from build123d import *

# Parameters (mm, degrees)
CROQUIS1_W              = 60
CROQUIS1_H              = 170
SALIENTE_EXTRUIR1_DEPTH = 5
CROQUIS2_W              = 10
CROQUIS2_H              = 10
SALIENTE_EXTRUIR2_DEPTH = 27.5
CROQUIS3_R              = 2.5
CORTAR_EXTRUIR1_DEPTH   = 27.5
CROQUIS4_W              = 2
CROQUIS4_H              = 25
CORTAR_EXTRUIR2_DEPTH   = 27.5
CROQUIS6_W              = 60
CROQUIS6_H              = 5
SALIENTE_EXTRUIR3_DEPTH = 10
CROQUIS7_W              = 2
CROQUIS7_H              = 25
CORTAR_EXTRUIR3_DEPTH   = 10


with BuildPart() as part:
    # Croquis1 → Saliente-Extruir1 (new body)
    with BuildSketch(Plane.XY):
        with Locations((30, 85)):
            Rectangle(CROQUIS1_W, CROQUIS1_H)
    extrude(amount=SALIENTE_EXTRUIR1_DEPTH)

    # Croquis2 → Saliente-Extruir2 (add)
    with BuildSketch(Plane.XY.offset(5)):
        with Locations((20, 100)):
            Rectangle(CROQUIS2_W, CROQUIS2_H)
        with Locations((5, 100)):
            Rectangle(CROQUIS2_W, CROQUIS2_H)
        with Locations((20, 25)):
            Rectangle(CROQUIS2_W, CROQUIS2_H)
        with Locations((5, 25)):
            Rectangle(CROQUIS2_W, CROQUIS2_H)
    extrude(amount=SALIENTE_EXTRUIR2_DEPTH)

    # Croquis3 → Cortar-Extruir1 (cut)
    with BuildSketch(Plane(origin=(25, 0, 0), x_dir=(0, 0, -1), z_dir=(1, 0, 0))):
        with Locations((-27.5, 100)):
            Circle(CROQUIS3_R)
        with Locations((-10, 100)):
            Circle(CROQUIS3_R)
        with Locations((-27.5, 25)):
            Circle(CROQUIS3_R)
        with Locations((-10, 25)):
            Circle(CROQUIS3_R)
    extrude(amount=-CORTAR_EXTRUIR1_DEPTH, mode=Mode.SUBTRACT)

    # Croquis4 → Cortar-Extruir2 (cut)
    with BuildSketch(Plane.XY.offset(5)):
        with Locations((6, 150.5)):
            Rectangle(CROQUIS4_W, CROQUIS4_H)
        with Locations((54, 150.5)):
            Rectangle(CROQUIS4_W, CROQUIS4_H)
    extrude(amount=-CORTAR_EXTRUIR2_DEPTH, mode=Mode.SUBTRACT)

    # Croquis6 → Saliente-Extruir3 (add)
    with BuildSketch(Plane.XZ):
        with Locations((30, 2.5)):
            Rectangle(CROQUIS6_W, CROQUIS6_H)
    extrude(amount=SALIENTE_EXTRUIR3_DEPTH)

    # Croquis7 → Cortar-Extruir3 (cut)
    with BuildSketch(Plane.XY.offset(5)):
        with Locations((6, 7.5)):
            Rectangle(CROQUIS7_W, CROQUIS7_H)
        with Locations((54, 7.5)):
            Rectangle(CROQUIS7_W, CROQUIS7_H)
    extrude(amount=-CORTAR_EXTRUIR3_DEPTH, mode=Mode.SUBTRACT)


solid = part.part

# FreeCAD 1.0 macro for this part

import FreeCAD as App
import Part
import Sketcher

V = App.Vector
Q = App.Units.Quantity


def add_polygon(sketch, points):
    """Adds a closed chain of lines whose ends are joined by coincident constraints."""
    first, n = sketch.GeometryCount, len(points)
    for a, b in zip(points, points[1:] + points[:1]):
        sketch.addGeometry(Part.LineSegment(App.Vector(*a, 0), App.Vector(*b, 0)), False)
    for i in range(n):
        sketch.addConstraint(Sketcher.Constraint("Coincident", first + i, 2, first + (i + 1) % n, 1))

doc = App.newDocument("Part")
body = doc.addObject("PartDesign::Body", "Body")

sketch1 = doc.addObject("Sketcher::SketchObject", "Sketch")
body.addObject(sketch1)
sketch1.AttachmentSupport = (doc.XY_Plane, [""])
sketch1.MapMode = "FlatFace"
add_polygon(sketch1, [(0, 170), (0, 0), (60, 0), (60, 170)])
sketch1.addConstraint(Sketcher.Constraint("Vertical", 0))
sketch1.addConstraint(Sketcher.Constraint("Horizontal", 1))
sketch1.addConstraint(Sketcher.Constraint("Vertical", 2))
sketch1.addConstraint(Sketcher.Constraint("Horizontal", 3))
sketch1.addConstraint(Sketcher.Constraint("Coincident", 0, 2, -1, 1))
sketch1.addConstraint(Sketcher.Constraint("DistanceX", 1, 1, 1, 2, Q("60 mm")))
sketch1.addConstraint(Sketcher.Constraint("DistanceY", 0, 2, 0, 1, Q("170 mm")))
pad1 = doc.addObject("PartDesign::Pad", "Pad")
body.addObject(pad1)
pad1.Profile = sketch1
pad1.Length = 5

sketch2 = doc.addObject("Sketcher::SketchObject", "Sketch001")
body.addObject(sketch2)
sketch2.AttachmentSupport = (doc.XY_Plane, [""])
sketch2.MapMode = "FlatFace"
sketch2.AttachmentOffset = App.Placement(V(0, 0, 5), App.Rotation())
add_polygon(sketch2, [(15, 105), (15, 95), (25, 95), (25, 105)])
add_polygon(sketch2, [(0, 105), (0, 95), (10, 95), (10, 105)])
add_polygon(sketch2, [(15, 30), (15, 20), (25, 20), (25, 30)])
add_polygon(sketch2, [(0, 30), (0, 20), (10, 20), (10, 30)])
sketch2.addConstraint(Sketcher.Constraint("Vertical", 0))
sketch2.addConstraint(Sketcher.Constraint("Horizontal", 1))
sketch2.addConstraint(Sketcher.Constraint("Vertical", 2))
sketch2.addConstraint(Sketcher.Constraint("Horizontal", 3))
sketch2.addConstraint(Sketcher.Constraint("Vertical", 4))
sketch2.addConstraint(Sketcher.Constraint("Horizontal", 5))
sketch2.addConstraint(Sketcher.Constraint("Vertical", 6))
sketch2.addConstraint(Sketcher.Constraint("Horizontal", 7))
sketch2.addConstraint(Sketcher.Constraint("Vertical", 8))
sketch2.addConstraint(Sketcher.Constraint("Horizontal", 9))
sketch2.addConstraint(Sketcher.Constraint("Vertical", 10))
sketch2.addConstraint(Sketcher.Constraint("Horizontal", 11))
sketch2.addConstraint(Sketcher.Constraint("Vertical", 12))
sketch2.addConstraint(Sketcher.Constraint("Horizontal", 13))
sketch2.addConstraint(Sketcher.Constraint("Vertical", 14))
sketch2.addConstraint(Sketcher.Constraint("Horizontal", 15))
sketch2.addConstraint(Sketcher.Constraint("PointOnObject", 4, 2, -2))
sketch2.addConstraint(Sketcher.Constraint("PointOnObject", 12, 2, -2))
sketch2.addConstraint(Sketcher.Constraint("Horizontal", 1, 2, 4, 2))
sketch2.addConstraint(Sketcher.Constraint("Horizontal", 3, 2, 6, 2))
sketch2.addConstraint(Sketcher.Constraint("Horizontal", 9, 2, 12, 2))
sketch2.addConstraint(Sketcher.Constraint("Horizontal", 11, 2, 14, 2))
sketch2.addConstraint(Sketcher.Constraint("Vertical", 3, 2, 8, 2))
sketch2.addConstraint(Sketcher.Constraint("Vertical", 2, 2, 9, 2))
sketch2.addConstraint(Sketcher.Constraint("Vertical", 6, 2, 13, 2))
sketch2.addConstraint(Sketcher.Constraint("Equal", 3, 5))
sketch2.addConstraint(Sketcher.Constraint("Equal", 15, 0))
sketch2.addConstraint(Sketcher.Constraint("Equal", 6, 8))
sketch2.addConstraint(Sketcher.Constraint("DistanceX", 1, 1, 1, 2, Q("10 mm")))
sketch2.addConstraint(Sketcher.Constraint("DistanceX", -1, 1, 0, 2, Q("15 mm")))
sketch2.addConstraint(Sketcher.Constraint("DistanceY", -1, 1, 0, 2, Q("95 mm")))
sketch2.addConstraint(Sketcher.Constraint("DistanceY", -1, 1, 8, 2, Q("20 mm")))
pad2 = doc.addObject("PartDesign::Pad", "Pad001")
body.addObject(pad2)
pad2.Profile = sketch2
pad2.Length = 27.5

sketch3 = doc.addObject("Sketcher::SketchObject", "Sketch002")
body.addObject(sketch3)
sketch3.AttachmentSupport = (doc.YZ_Plane, [""])
sketch3.MapMode = "FlatFace"
sketch3.AttachmentOffset = App.Placement(V(0, 0, 25), App.Rotation())
sketch3.addGeometry(Part.Circle(V(100, 27.5, 0), V(0, 0, 1), 2.5), False)
sketch3.addGeometry(Part.Circle(V(100, 10, 0), V(0, 0, 1), 2.5), False)
sketch3.addGeometry(Part.Circle(V(25, 27.5, 0), V(0, 0, 1), 2.5), False)
sketch3.addGeometry(Part.Circle(V(25, 10, 0), V(0, 0, 1), 2.5), False)
sketch3.addConstraint(Sketcher.Constraint("Equal", 0, 1))
sketch3.addConstraint(Sketcher.Constraint("Equal", 1, 2))
sketch3.addConstraint(Sketcher.Constraint("Equal", 2, 3))
sketch3.addConstraint(Sketcher.Constraint("Horizontal", 0, 3, 2, 3))
sketch3.addConstraint(Sketcher.Constraint("Horizontal", 1, 3, 3, 3))
sketch3.addConstraint(Sketcher.Constraint("Vertical", 0, 3, 1, 3))
sketch3.addConstraint(Sketcher.Constraint("Vertical", 2, 3, 3, 3))
sketch3.addConstraint(Sketcher.Constraint("Diameter", 0, Q("5 mm")))
sketch3.addConstraint(Sketcher.Constraint("DistanceX", -1, 1, 0, 3, Q("100 mm")))
sketch3.addConstraint(Sketcher.Constraint("DistanceY", -1, 1, 1, 3, Q("10 mm")))
sketch3.addConstraint(Sketcher.Constraint("DistanceX", -1, 1, 2, 3, Q("25 mm")))
sketch3.addConstraint(Sketcher.Constraint("DistanceY", -1, 1, 0, 3, Q("27.5 mm")))
pocket1 = doc.addObject("PartDesign::Pocket", "Pocket")
body.addObject(pocket1)
pocket1.Profile = sketch3
pocket1.Length = 27.5

sketch4 = doc.addObject("Sketcher::SketchObject", "Sketch003")
body.addObject(sketch4)
sketch4.AttachmentSupport = (doc.XY_Plane, [""])
sketch4.MapMode = "FlatFace"
sketch4.AttachmentOffset = App.Placement(V(0, 0, 5), App.Rotation())
add_polygon(sketch4, [(5, 163), (5, 138), (7, 138), (7, 163)])
add_polygon(sketch4, [(53, 163), (53, 138), (55, 138), (55, 163)])
sketch4.addConstraint(Sketcher.Constraint("Vertical", 0))
sketch4.addConstraint(Sketcher.Constraint("Horizontal", 1))
sketch4.addConstraint(Sketcher.Constraint("Vertical", 2))
sketch4.addConstraint(Sketcher.Constraint("Horizontal", 3))
sketch4.addConstraint(Sketcher.Constraint("Vertical", 4))
sketch4.addConstraint(Sketcher.Constraint("Horizontal", 5))
sketch4.addConstraint(Sketcher.Constraint("Vertical", 6))
sketch4.addConstraint(Sketcher.Constraint("Horizontal", 7))
sketch4.addConstraint(Sketcher.Constraint("Horizontal", 1, 2, 4, 2))
sketch4.addConstraint(Sketcher.Constraint("Horizontal", 3, 2, 6, 2))
sketch4.addConstraint(Sketcher.Constraint("Equal", 3, 5))
sketch4.addConstraint(Sketcher.Constraint("DistanceX", 1, 1, 1, 2, Q("2 mm")))
sketch4.addConstraint(Sketcher.Constraint("DistanceY", 0, 2, 0, 1, Q("25 mm")))
sketch4.addConstraint(Sketcher.Constraint("DistanceX", -1, 1, 0, 2, Q("5 mm")))
sketch4.addConstraint(Sketcher.Constraint("DistanceY", -1, 1, 0, 2, Q("138 mm")))
sketch4.addConstraint(Sketcher.Constraint("DistanceX", -1, 1, 4, 2, Q("53 mm")))
pocket2 = doc.addObject("PartDesign::Pocket", "Pocket001")
body.addObject(pocket2)
pocket2.Profile = sketch4
pocket2.Length = 27.5

sketch5 = doc.addObject("Sketcher::SketchObject", "Sketch004")
body.addObject(sketch5)
sketch5.AttachmentSupport = (doc.XZ_Plane, [""])
sketch5.MapMode = "FlatFace"
add_polygon(sketch5, [(0, 5), (0, 0), (60, 0), (60, 5)])
sketch5.addConstraint(Sketcher.Constraint("Vertical", 0))
sketch5.addConstraint(Sketcher.Constraint("Horizontal", 1))
sketch5.addConstraint(Sketcher.Constraint("Vertical", 2))
sketch5.addConstraint(Sketcher.Constraint("Horizontal", 3))
sketch5.addConstraint(Sketcher.Constraint("Coincident", 0, 2, -1, 1))
sketch5.addConstraint(Sketcher.Constraint("DistanceX", 1, 1, 1, 2, Q("60 mm")))
sketch5.addConstraint(Sketcher.Constraint("DistanceY", 0, 2, 0, 1, Q("5 mm")))
pad3 = doc.addObject("PartDesign::Pad", "Pad002")
body.addObject(pad3)
pad3.Profile = sketch5
pad3.Length = 10

sketch6 = doc.addObject("Sketcher::SketchObject", "Sketch005")
body.addObject(sketch6)
sketch6.AttachmentSupport = (doc.XY_Plane, [""])
sketch6.MapMode = "FlatFace"
sketch6.AttachmentOffset = App.Placement(V(0, 0, 5), App.Rotation())
add_polygon(sketch6, [(5, 20), (5, -5), (7, -5), (7, 20)])
add_polygon(sketch6, [(53, 20), (53, -5), (55, -5), (55, 20)])
sketch6.addConstraint(Sketcher.Constraint("Vertical", 0))
sketch6.addConstraint(Sketcher.Constraint("Horizontal", 1))
sketch6.addConstraint(Sketcher.Constraint("Vertical", 2))
sketch6.addConstraint(Sketcher.Constraint("Horizontal", 3))
sketch6.addConstraint(Sketcher.Constraint("Vertical", 4))
sketch6.addConstraint(Sketcher.Constraint("Horizontal", 5))
sketch6.addConstraint(Sketcher.Constraint("Vertical", 6))
sketch6.addConstraint(Sketcher.Constraint("Horizontal", 7))
sketch6.addConstraint(Sketcher.Constraint("Horizontal", 1, 2, 4, 2))
sketch6.addConstraint(Sketcher.Constraint("Horizontal", 3, 2, 6, 2))
sketch6.addConstraint(Sketcher.Constraint("Equal", 3, 5))
sketch6.addConstraint(Sketcher.Constraint("DistanceX", 1, 1, 1, 2, Q("2 mm")))
sketch6.addConstraint(Sketcher.Constraint("DistanceY", 0, 2, 0, 1, Q("25 mm")))
sketch6.addConstraint(Sketcher.Constraint("DistanceX", -1, 1, 0, 2, Q("5 mm")))
sketch6.addConstraint(Sketcher.Constraint("DistanceY", 0, 2, -1, 1, Q("5 mm")))
sketch6.addConstraint(Sketcher.Constraint("DistanceX", -1, 1, 4, 2, Q("53 mm")))
pocket3 = doc.addObject("PartDesign::Pocket", "Pocket002")
body.addObject(pocket3)
pocket3.Profile = sketch6
pocket3.Length = 10

doc.recompute()
